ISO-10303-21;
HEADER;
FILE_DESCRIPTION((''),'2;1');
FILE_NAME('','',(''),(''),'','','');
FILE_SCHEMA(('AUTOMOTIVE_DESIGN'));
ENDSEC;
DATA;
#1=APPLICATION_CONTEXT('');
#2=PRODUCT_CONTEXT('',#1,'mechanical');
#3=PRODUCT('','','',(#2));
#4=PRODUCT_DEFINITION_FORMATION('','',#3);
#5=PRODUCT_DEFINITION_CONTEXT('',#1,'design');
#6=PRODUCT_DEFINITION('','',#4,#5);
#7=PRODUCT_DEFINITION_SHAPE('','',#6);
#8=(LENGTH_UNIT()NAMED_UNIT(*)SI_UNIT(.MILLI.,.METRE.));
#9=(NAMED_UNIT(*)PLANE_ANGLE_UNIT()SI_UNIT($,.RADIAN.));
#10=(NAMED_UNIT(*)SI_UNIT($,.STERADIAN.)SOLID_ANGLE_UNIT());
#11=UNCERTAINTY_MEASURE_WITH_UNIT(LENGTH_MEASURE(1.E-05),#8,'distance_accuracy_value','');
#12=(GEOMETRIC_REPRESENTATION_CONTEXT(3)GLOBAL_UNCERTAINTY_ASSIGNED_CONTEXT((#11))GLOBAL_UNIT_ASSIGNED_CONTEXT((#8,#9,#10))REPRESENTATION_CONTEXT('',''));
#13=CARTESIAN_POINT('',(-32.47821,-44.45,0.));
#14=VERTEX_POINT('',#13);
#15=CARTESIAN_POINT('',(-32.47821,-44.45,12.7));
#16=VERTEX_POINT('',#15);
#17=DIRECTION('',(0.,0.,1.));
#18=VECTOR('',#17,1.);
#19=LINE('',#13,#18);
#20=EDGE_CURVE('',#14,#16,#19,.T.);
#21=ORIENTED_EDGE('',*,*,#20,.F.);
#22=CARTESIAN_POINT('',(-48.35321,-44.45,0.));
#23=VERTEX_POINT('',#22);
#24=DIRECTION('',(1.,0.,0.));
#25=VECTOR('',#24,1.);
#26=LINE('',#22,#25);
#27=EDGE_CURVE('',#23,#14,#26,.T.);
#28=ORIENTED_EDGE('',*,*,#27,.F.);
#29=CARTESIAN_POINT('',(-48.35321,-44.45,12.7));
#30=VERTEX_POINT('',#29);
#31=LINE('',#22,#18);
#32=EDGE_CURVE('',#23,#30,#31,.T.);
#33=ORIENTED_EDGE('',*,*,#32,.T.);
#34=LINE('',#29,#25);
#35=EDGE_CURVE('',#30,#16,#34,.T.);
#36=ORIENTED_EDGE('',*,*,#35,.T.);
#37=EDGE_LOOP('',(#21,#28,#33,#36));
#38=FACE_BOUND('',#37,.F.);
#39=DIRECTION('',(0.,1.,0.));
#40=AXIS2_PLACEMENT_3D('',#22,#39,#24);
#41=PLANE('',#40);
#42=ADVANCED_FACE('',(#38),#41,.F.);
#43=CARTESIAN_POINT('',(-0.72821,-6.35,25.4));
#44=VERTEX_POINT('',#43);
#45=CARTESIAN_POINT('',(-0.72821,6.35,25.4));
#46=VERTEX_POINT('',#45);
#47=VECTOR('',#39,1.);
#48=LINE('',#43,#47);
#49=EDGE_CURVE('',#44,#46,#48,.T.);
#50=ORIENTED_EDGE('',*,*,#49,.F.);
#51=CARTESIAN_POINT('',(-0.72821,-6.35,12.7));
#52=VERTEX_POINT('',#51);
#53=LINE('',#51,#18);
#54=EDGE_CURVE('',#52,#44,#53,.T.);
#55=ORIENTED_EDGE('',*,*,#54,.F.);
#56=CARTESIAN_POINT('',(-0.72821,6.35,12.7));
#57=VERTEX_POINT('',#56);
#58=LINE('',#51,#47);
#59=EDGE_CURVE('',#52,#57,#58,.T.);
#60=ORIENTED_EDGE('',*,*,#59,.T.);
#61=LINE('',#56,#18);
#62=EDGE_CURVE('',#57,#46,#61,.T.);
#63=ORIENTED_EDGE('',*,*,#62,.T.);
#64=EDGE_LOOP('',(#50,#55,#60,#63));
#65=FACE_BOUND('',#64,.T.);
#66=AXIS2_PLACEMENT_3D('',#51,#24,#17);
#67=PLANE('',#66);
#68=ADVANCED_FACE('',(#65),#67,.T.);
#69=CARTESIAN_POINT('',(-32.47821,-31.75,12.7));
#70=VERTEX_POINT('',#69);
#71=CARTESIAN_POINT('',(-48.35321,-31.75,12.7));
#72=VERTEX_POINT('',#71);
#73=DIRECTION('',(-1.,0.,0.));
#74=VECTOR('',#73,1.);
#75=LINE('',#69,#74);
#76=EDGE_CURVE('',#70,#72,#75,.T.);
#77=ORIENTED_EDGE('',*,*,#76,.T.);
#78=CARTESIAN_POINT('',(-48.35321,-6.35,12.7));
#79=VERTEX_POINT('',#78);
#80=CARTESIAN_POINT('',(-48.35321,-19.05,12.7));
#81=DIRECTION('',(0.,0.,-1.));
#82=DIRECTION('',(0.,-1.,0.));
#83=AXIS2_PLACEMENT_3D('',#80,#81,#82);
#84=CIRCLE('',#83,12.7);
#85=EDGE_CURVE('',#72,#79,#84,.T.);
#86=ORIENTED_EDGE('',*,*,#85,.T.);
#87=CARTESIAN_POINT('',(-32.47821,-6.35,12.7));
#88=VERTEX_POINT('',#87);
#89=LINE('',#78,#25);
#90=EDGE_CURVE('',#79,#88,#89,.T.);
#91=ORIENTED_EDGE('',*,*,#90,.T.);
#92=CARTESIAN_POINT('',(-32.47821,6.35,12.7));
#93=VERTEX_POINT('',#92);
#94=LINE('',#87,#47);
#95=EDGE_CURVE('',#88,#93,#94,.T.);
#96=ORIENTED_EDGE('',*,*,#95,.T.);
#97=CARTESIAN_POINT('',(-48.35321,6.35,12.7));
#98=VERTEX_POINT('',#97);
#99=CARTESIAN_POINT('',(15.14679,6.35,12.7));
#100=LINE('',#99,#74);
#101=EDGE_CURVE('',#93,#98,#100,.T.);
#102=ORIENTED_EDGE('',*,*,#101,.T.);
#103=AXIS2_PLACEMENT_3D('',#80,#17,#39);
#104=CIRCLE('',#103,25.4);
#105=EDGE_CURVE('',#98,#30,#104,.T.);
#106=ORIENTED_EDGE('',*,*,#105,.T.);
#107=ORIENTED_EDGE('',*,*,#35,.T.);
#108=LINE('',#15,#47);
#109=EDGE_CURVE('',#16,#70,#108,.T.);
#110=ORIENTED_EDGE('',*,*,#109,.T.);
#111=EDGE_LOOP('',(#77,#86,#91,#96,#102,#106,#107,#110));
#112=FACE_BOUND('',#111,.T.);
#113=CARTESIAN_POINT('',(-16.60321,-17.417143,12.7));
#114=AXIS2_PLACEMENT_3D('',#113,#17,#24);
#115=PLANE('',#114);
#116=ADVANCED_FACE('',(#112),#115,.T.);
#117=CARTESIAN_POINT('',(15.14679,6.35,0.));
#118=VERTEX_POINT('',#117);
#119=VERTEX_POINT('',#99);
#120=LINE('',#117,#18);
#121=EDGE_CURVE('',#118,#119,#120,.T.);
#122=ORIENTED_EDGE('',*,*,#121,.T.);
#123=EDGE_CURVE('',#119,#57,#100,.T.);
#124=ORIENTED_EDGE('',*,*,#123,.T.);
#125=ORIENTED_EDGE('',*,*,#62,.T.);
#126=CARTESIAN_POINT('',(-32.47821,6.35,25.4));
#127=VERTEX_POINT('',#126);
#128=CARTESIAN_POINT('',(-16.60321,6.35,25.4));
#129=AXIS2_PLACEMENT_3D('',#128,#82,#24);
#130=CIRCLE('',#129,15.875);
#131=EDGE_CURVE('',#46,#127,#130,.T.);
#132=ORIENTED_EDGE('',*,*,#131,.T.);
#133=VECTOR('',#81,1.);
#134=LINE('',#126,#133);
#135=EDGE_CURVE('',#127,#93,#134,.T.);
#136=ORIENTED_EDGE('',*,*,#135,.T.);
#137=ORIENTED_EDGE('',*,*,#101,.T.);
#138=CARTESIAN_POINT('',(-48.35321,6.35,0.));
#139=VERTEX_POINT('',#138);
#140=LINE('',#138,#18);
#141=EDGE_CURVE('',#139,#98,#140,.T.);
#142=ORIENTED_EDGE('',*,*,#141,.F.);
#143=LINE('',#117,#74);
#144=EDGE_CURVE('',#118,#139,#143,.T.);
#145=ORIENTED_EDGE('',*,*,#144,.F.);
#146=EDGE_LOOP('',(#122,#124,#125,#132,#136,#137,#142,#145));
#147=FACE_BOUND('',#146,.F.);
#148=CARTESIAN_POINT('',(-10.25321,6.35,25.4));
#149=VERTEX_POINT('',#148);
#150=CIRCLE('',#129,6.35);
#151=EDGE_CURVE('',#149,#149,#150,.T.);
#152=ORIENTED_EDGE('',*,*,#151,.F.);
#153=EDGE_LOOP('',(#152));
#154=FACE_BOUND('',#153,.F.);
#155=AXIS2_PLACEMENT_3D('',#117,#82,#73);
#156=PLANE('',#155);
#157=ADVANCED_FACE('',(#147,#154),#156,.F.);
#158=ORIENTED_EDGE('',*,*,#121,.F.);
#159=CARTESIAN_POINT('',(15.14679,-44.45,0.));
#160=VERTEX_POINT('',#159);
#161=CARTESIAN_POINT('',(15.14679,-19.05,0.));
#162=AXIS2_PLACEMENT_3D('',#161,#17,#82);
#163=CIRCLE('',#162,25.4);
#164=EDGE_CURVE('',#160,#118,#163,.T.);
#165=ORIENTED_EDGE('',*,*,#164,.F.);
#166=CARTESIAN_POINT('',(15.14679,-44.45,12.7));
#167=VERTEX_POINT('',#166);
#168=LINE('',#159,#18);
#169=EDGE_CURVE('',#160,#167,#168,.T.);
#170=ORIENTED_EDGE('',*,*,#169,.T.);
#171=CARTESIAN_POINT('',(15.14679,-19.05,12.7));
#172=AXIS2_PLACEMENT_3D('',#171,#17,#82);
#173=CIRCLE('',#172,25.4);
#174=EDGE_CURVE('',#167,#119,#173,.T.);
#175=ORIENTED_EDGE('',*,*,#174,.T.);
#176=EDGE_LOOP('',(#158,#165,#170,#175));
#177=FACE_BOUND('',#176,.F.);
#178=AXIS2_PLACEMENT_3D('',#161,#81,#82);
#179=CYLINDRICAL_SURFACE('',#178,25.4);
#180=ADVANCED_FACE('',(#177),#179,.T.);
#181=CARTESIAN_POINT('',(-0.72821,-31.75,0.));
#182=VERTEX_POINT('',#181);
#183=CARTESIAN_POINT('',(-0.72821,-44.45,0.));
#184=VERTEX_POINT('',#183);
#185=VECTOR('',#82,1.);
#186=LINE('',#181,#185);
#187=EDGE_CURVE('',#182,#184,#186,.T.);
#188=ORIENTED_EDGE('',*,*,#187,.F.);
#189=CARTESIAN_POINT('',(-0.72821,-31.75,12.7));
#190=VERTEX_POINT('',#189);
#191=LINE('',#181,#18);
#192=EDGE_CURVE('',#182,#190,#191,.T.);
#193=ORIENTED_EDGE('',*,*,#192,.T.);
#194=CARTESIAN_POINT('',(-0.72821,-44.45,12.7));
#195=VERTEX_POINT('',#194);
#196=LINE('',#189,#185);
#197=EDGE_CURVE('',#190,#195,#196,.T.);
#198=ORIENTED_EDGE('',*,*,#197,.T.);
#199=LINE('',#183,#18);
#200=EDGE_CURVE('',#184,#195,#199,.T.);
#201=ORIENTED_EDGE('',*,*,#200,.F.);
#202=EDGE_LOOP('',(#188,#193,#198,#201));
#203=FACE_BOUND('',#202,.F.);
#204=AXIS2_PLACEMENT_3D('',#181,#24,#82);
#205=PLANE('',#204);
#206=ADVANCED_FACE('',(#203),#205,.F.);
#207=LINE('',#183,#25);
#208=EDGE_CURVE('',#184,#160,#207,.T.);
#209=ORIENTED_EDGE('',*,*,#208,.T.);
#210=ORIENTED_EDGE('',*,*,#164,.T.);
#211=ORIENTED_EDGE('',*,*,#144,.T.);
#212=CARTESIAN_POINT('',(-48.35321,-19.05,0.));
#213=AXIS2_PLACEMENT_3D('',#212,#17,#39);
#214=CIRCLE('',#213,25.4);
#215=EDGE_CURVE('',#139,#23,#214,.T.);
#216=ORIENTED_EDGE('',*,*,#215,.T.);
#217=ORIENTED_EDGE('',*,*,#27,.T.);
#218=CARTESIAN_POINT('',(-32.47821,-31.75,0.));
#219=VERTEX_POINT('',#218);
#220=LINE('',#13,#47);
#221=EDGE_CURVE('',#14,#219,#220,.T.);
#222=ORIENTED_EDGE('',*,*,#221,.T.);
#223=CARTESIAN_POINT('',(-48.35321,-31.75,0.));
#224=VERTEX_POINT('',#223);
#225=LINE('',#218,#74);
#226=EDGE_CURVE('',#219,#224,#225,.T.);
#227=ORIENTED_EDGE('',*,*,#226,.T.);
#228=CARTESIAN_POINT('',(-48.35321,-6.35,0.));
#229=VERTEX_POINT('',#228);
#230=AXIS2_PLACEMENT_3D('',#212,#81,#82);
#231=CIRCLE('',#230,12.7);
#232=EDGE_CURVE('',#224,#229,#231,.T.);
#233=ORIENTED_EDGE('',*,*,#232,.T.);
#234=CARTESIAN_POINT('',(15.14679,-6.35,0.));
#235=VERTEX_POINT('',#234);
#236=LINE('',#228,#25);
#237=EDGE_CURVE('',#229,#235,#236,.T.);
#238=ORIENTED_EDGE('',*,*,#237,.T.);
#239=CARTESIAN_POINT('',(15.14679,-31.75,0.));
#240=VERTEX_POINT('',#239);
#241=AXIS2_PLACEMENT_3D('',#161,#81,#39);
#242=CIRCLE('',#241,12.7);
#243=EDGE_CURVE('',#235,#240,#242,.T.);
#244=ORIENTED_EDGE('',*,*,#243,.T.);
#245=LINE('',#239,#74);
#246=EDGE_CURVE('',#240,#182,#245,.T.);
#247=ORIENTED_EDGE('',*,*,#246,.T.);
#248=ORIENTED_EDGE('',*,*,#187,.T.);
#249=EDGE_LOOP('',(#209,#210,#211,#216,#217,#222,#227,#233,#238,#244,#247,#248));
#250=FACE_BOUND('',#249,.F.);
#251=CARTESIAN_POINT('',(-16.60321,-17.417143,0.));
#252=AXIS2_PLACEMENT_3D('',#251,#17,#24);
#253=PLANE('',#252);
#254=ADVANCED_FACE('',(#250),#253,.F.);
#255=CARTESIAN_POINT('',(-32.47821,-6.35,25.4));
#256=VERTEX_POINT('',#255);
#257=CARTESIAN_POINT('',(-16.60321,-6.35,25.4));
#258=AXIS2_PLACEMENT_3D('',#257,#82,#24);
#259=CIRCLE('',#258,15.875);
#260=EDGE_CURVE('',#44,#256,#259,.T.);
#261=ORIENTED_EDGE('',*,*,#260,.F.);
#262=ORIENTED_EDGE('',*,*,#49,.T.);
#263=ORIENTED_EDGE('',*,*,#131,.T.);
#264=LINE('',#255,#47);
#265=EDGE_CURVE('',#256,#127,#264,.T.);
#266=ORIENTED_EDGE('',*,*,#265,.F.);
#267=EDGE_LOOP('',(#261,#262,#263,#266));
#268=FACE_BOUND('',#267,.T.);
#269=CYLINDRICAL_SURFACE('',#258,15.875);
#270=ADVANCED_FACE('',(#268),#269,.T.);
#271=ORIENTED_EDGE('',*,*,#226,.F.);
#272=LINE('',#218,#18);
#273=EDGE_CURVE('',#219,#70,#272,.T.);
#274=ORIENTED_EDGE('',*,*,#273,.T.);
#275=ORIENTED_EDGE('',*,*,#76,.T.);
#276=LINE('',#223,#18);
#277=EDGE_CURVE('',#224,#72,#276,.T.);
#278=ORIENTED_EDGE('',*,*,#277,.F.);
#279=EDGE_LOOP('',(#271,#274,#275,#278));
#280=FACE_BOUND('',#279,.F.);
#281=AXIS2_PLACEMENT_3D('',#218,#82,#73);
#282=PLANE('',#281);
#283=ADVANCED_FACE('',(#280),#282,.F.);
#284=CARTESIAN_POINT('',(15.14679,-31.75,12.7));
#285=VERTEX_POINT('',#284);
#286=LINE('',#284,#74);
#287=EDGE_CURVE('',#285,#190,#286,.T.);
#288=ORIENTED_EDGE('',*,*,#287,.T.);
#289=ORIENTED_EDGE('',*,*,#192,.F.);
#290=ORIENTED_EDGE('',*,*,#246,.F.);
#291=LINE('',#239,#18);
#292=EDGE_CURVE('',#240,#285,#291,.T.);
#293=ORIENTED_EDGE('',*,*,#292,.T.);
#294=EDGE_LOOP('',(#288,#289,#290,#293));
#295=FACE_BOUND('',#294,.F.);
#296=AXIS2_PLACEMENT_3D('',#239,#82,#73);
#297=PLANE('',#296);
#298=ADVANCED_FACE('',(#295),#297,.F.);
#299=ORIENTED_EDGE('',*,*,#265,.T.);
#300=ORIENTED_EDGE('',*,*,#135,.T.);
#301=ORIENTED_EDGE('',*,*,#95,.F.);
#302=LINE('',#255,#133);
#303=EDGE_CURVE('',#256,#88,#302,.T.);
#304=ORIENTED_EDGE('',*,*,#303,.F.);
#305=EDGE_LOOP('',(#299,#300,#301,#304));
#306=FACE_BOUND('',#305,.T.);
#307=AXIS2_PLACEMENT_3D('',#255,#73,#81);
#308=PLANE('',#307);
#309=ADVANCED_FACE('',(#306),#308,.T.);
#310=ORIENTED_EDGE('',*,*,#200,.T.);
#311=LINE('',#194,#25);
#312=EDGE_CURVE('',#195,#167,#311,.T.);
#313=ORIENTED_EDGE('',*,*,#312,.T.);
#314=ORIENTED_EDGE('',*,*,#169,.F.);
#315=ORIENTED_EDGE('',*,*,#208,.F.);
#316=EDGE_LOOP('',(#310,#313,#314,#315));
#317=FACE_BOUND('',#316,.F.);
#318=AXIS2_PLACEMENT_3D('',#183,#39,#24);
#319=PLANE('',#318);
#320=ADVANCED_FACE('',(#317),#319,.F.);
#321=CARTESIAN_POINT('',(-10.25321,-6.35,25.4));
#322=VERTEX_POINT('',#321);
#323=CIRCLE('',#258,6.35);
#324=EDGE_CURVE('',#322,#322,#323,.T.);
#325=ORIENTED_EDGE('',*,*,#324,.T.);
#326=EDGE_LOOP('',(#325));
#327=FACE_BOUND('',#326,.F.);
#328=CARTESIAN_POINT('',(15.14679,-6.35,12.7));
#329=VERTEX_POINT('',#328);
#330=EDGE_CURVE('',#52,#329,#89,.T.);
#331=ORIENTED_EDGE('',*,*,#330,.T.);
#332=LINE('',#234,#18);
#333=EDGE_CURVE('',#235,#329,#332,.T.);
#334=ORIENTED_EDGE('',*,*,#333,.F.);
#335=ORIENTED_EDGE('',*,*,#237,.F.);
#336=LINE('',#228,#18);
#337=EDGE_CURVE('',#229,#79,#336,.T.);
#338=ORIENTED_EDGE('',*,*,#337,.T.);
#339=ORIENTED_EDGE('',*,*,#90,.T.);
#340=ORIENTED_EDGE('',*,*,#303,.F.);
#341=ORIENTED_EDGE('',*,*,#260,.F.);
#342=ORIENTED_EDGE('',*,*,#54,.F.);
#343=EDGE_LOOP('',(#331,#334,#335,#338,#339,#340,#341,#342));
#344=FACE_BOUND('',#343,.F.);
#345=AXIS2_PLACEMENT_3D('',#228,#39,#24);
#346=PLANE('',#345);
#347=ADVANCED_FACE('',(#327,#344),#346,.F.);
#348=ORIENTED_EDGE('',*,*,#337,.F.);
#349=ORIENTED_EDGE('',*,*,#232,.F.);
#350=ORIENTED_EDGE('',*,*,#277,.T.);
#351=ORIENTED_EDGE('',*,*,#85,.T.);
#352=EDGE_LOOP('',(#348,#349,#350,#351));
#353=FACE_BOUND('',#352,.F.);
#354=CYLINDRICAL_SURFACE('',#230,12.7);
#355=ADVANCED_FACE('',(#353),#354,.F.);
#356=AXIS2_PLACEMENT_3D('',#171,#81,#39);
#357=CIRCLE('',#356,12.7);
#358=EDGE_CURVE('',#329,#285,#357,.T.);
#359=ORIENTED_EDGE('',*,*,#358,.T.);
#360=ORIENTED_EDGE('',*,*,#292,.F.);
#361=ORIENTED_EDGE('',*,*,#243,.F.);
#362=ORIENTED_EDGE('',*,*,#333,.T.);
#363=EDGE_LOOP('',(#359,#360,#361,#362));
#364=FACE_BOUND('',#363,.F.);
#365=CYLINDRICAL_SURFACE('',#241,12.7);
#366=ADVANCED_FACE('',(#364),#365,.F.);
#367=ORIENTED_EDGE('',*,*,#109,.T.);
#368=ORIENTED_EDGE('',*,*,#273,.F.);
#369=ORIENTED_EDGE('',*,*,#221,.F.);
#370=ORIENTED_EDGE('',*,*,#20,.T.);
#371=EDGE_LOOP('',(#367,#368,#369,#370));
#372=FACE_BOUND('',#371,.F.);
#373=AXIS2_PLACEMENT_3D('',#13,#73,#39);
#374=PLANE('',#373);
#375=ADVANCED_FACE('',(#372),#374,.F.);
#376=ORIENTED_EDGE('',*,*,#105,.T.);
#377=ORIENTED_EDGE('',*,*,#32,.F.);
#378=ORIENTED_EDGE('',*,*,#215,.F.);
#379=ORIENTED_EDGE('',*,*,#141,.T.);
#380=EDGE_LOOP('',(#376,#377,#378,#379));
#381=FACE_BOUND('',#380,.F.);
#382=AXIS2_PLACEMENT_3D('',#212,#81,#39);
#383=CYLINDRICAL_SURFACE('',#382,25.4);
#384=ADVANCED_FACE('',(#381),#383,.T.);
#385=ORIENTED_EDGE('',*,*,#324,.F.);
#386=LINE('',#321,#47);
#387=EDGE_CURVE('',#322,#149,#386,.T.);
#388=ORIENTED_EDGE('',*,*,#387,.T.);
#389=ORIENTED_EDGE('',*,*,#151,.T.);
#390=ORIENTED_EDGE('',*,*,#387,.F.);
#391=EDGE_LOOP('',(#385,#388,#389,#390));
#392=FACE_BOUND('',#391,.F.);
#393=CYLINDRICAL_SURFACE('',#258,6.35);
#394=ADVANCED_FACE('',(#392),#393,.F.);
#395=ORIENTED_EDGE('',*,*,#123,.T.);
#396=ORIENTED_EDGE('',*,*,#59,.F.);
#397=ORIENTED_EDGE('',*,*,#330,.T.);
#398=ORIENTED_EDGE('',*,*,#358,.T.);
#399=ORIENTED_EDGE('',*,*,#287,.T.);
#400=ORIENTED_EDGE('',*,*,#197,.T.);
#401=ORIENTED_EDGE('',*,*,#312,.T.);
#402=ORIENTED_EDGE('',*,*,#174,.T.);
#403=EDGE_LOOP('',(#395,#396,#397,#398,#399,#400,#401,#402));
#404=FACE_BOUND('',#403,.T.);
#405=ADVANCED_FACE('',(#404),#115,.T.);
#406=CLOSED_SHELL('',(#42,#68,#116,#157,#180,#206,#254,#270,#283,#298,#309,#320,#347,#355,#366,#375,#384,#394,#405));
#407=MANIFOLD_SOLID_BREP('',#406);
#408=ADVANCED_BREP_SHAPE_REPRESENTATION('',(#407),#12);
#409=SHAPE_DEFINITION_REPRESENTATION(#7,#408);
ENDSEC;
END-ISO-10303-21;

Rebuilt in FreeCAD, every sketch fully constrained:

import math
import FreeCAD as App
import Part
import Sketcher
from FreeCAD import Vector
Q = App.Units.Quantity

doc = App.newDocument("Part")
body = doc.addObject("PartDesign::Body", "Body")

# Sketch on XY plane
sketch1 = doc.addObject("Sketcher::SketchObject", "Sketch")
body.addObject(sketch1)
sketch1.AttachmentSupport = (doc.XY_Plane, [""])
sketch1.MapMode = "FlatFace"
sketch1.addGeometry([
    Part.LineSegment(Vector(15, 6, 0), Vector(-48, 6, 0)),  # 0
    Part.ArcOfCircle(Part.Circle(Vector(-48, -19, 0), Vector(0, 0, 1), 25), math.radians(90), math.radians(270)),  # 1
    Part.LineSegment(Vector(-48, -44, 0), Vector(-32, -44, 0)),  # 2
    Part.LineSegment(Vector(-32, -44, 0), Vector(-32, -32, 0)),  # 3
    Part.LineSegment(Vector(-32, -32, 0), Vector(-48, -32, 0)),  # 4
    Part.ArcOfCircle(Part.Circle(Vector(-48, -19, 0), Vector(0, 0, 1), 13), math.radians(90), math.radians(270)),  # 5
    Part.LineSegment(Vector(-48, -6, 0), Vector(15, -6, 0)),  # 6
    Part.ArcOfCircle(Part.Circle(Vector(15, -19, 0), Vector(0, 0, 1), 13), math.radians(-90), math.radians(90)),  # 7
    Part.LineSegment(Vector(15, -32, 0), Vector(-1, -32, 0)),  # 8
    Part.LineSegment(Vector(-1, -32, 0), Vector(-1, -44, 0)),  # 9
    Part.LineSegment(Vector(-1, -44, 0), Vector(15, -44, 0)),  # 10
    Part.ArcOfCircle(Part.Circle(Vector(15, -19, 0), Vector(0, 0, 1), 25), math.radians(-90), math.radians(90)),  # 11
], False)
sketch1.addConstraint([
    Sketcher.Constraint("Tangent", 0, 2, 1, 1),
    Sketcher.Constraint("Tangent", 1, 2, 2, 1),
    Sketcher.Constraint("Coincident", 2, 2, 3, 1),
    Sketcher.Constraint("Coincident", 3, 2, 4, 1),
    Sketcher.Constraint("Tangent", 4, 2, 5, 2),
    Sketcher.Constraint("Tangent", 5, 1, 6, 1),
    Sketcher.Constraint("Tangent", 6, 2, 7, 2),
    Sketcher.Constraint("Tangent", 7, 1, 8, 1),
    Sketcher.Constraint("Coincident", 8, 2, 9, 1),
    Sketcher.Constraint("Coincident", 9, 2, 10, 1),
    Sketcher.Constraint("Tangent", 10, 2, 11, 1),
    Sketcher.Constraint("Tangent", 11, 2, 0, 1),
    Sketcher.Constraint("Horizontal", 0),
    Sketcher.Constraint("Horizontal", 2),
    Sketcher.Constraint("Vertical", 3),
    Sketcher.Constraint("Horizontal", 4),
    Sketcher.Constraint("Horizontal", 6),
    Sketcher.Constraint("Horizontal", 8),
    Sketcher.Constraint("Vertical", 9),
    Sketcher.Constraint("Horizontal", 10),
    Sketcher.Constraint("Coincident", 5, 3, 1, 3),
    Sketcher.Constraint("Coincident", 11, 3, 7, 3),
    Sketcher.Constraint("Equal", 5, 7),
    Sketcher.Constraint("Equal", 4, 8),
    Sketcher.Constraint("Radius", 1, Q("1 in")),
    Sketcher.Constraint("Radius", 5, Q("0.5 in")),
    Sketcher.Constraint("DistanceX", 0, 2, 0, 1, Q("2.5 in")),
    Sketcher.Constraint("DistanceX", 2, 1, 2, 2, Q("0.625 in")),
    Sketcher.Constraint("DistanceY", 1, 3, -1, 1, Q("0.75 in")),
    Sketcher.Constraint("DistanceX", 1, 3, -1, 1, Q("48.35321 mm")),
])
pad1 = doc.addObject("PartDesign::Pad", "Pad")
body.addObject(pad1)
pad1.Profile = sketch1
pad1.Length = Q("0.5 in")

# Sketch on XZ plane
sketch2 = doc.addObject("Sketcher::SketchObject", "Sketch001")
body.addObject(sketch2)
sketch2.AttachmentSupport = (doc.XZ_Plane, [""])
sketch2.MapMode = "FlatFace"
sketch2.AttachmentOffset = App.Placement(Vector(0, 0, 0.25 * 25.4), App.Rotation())
sketch2.addGeometry([
    Part.LineSegment(Vector(-1, 13, 0), Vector(-1, 25, 0)),  # 0
    Part.ArcOfCircle(Part.Circle(Vector(-17, 25, 0), Vector(0, 0, 1), 16), math.radians(0), math.radians(180)),  # 1
    Part.LineSegment(Vector(-32, 25, 0), Vector(-32, 13, 0)),  # 2
    Part.LineSegment(Vector(-32, 13, 0), Vector(-1, 13, 0)),  # 3
    Part.Circle(Vector(-17, 25, 0), Vector(0, 0, 1), 6),  # 4
], False)
sketch2.addConstraint([
    Sketcher.Constraint("Tangent", 0, 2, 1, 1),
    Sketcher.Constraint("Tangent", 1, 2, 2, 1),
    Sketcher.Constraint("Coincident", 2, 2, 3, 1),
    Sketcher.Constraint("Coincident", 3, 2, 0, 1),
    Sketcher.Constraint("Vertical", 0),
    Sketcher.Constraint("Vertical", 2),
    Sketcher.Constraint("Horizontal", 3),
    Sketcher.Constraint("Coincident", 4, 3, 1, 3),
    Sketcher.Constraint("Diameter", 4, Q("0.5 in")),
    Sketcher.Constraint("DistanceY", 0, 1, 0, 2, Q("0.5 in")),
    Sketcher.Constraint("DistanceY", -1, 1, 1, 3, Q("1 in")),
    Sketcher.Constraint("Radius", 1, Q("0.625 in")),
    Sketcher.Constraint("DistanceX", 1, 3, -1, 1, Q("16.60321 mm")),
])
pad2 = doc.addObject("PartDesign::Pad", "Pad001")
body.addObject(pad2)
pad2.Profile = sketch2
pad2.Length = Q("0.5 in")
pad2.Reversed = True

doc.recompute()
